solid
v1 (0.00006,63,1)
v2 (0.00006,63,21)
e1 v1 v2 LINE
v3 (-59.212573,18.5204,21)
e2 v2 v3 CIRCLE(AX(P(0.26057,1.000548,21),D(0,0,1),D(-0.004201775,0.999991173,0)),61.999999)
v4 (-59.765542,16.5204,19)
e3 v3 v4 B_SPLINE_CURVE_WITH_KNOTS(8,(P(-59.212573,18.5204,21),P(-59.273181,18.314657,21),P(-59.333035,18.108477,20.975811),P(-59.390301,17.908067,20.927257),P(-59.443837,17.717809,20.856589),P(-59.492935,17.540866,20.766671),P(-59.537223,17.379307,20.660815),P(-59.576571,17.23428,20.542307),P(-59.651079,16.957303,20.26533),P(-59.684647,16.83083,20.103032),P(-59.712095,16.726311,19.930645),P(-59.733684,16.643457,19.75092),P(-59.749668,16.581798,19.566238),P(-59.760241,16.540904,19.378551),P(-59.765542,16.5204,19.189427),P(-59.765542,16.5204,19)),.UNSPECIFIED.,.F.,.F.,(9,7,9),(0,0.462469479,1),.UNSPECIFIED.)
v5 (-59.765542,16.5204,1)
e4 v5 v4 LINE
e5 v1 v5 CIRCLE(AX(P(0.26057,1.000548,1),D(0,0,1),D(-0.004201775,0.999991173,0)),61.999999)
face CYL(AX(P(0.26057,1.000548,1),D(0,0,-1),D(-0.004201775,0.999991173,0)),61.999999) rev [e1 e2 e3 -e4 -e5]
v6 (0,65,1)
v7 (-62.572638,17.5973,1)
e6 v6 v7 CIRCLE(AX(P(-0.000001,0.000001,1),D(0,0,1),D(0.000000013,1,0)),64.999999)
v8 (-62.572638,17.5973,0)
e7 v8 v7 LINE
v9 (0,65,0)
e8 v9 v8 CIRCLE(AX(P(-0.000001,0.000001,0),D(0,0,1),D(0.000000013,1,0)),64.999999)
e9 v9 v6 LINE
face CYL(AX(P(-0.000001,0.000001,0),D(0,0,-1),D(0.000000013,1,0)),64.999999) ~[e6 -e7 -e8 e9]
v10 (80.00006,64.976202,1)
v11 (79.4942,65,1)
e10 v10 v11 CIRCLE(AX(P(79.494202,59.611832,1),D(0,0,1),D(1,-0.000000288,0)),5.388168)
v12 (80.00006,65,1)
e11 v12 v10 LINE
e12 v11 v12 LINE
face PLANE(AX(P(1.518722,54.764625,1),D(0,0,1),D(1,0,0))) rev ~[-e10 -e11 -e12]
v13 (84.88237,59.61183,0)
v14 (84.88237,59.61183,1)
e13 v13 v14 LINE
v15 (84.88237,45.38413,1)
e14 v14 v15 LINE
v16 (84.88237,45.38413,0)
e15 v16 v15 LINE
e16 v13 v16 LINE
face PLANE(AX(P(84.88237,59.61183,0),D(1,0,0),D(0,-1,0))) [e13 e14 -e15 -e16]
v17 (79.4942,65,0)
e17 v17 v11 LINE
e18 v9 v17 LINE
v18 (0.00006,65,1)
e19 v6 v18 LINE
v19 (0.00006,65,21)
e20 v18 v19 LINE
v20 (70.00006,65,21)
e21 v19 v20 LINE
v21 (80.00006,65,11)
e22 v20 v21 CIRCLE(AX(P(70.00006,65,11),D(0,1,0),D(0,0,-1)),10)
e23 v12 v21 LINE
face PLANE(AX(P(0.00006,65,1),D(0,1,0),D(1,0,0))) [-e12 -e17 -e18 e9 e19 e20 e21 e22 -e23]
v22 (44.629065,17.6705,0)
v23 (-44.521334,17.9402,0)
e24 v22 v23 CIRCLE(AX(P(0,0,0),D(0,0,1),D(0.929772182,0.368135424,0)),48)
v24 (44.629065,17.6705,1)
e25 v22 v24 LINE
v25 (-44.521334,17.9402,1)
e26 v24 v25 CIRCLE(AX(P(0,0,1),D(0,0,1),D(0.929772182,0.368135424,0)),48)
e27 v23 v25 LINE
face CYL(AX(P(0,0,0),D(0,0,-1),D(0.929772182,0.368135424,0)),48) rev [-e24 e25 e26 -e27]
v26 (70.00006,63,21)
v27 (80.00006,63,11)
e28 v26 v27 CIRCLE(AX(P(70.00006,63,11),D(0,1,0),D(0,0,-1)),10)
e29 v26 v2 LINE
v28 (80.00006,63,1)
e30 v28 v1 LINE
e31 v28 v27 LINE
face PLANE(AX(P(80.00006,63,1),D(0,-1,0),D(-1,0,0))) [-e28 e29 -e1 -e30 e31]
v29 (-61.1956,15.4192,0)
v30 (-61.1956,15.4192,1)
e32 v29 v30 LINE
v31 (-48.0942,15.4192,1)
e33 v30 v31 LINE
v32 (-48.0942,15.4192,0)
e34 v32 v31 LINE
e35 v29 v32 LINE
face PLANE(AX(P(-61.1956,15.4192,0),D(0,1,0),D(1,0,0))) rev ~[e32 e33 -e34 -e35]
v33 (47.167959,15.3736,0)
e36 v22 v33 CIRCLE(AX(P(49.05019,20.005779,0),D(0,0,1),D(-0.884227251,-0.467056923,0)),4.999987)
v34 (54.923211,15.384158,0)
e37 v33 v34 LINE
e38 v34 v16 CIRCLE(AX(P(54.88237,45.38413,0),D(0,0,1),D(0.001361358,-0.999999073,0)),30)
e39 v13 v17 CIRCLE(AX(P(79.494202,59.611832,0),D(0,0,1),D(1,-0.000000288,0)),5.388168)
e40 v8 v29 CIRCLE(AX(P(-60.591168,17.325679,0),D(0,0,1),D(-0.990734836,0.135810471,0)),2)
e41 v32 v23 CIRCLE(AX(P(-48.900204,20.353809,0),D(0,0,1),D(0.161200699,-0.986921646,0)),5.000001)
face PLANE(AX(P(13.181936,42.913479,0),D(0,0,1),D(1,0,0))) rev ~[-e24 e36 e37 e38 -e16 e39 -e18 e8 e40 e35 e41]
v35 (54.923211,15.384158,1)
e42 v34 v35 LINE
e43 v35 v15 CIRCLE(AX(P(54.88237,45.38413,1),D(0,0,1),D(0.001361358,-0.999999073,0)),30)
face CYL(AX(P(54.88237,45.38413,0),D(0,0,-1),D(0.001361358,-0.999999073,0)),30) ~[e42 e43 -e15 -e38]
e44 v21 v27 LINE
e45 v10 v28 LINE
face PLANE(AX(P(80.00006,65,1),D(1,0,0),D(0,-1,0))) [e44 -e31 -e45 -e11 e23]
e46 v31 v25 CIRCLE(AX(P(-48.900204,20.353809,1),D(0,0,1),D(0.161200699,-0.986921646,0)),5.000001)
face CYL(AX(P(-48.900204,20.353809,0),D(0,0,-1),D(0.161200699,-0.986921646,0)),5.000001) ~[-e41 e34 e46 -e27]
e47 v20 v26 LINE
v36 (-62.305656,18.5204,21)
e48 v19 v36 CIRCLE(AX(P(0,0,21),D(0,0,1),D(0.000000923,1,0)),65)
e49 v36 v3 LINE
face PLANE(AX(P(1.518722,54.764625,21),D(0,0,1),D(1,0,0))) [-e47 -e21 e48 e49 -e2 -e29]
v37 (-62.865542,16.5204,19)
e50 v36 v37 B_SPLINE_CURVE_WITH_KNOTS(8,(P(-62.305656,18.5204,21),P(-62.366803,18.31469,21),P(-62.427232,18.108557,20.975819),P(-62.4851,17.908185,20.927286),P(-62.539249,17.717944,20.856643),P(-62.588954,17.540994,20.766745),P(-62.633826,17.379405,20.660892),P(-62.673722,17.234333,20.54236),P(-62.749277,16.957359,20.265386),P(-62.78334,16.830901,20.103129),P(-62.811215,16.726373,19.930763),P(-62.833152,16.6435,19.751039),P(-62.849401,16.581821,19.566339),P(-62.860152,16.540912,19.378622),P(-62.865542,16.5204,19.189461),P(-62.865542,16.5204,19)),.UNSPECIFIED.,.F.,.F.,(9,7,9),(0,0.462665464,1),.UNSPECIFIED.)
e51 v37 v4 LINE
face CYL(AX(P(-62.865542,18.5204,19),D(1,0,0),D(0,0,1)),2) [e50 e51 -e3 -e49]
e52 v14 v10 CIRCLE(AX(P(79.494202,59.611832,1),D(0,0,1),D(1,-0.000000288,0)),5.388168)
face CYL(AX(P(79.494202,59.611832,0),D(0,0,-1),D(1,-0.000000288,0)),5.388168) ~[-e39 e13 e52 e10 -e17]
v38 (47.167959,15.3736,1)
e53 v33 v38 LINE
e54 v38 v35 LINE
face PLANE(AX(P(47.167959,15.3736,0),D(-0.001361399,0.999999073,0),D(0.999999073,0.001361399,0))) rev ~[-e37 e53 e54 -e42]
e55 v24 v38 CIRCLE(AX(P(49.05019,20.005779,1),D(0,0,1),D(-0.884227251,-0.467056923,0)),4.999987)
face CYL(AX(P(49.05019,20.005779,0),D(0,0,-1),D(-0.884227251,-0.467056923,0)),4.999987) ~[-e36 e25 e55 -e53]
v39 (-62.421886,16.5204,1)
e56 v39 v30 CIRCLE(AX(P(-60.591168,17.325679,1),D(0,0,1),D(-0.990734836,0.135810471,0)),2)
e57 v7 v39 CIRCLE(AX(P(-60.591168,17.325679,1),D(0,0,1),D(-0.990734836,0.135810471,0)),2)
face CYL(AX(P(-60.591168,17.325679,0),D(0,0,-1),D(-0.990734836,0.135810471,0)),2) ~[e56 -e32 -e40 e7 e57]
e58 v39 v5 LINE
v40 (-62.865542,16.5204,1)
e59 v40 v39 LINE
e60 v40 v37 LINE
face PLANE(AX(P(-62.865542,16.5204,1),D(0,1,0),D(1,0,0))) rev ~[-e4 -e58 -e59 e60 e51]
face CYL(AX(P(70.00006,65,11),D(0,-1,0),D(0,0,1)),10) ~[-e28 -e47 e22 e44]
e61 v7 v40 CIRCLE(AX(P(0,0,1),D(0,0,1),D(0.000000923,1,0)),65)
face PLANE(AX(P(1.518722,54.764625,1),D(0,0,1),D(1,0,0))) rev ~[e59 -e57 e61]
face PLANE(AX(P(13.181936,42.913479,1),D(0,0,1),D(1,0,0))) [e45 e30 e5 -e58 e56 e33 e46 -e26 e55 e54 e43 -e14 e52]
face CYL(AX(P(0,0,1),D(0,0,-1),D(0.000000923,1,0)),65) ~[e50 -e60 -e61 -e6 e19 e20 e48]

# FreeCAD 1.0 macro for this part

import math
import FreeCAD as App
import Part
import Sketcher
Q = App.Units.Quantity


def edges_at(feature, points):
    """Names of the edges that pass closest to the given points."""
    edges = feature.Shape.Edges
    near = lambda p: min(range(len(edges)), key=lambda i: edges[i].distToShape(Part.Vertex(*p))[0])
    return sorted({f"Edge{near(p) + 1}" for p in points})

doc = App.newDocument("Part")
body = doc.addObject("PartDesign::Body", "Body")

# Sketch on XY plane
sketch1 = doc.addObject("Sketcher::SketchObject", "Sketch")
body.addObject(sketch1)
sketch1.AttachmentSupport = (doc.XY_Plane, [""])
sketch1.MapMode = "FlatFace"
sketch1.addGeometry([
    Part.ArcOfCircle(Part.Circle(App.Vector(0, 0, 0), App.Vector(0, 0, 1), 65), math.radians(90), math.radians(164)),  # 0
    Part.ArcOfCircle(Part.Circle(App.Vector(-60.6, 17.3, 0), App.Vector(0, 0, 1), 2), math.radians(172), math.radians(252)),  # 1
    Part.LineSegment(App.Vector(-61.2, 15.4, 0), App.Vector(-48.1, 15.4, 0)),  # 2
    Part.ArcOfCircle(Part.Circle(App.Vector(-48.9, 20.4, 0), App.Vector(0, 0, 1), 5), math.radians(-81), math.radians(-29)),  # 3
    Part.ArcOfCircle(Part.Circle(App.Vector(0, 0, 0), App.Vector(0, 0, 1), 48), math.radians(22), math.radians(158)),  # 4
    Part.ArcOfCircle(Part.Circle(App.Vector(49.1, 20, 0), App.Vector(0, 0, 1), 5), math.radians(-152), math.radians(-112)),  # 5
    Part.LineSegment(App.Vector(47.2, 15.4, 0), App.Vector(54.9, 15.4, 0)),  # 6
    Part.ArcOfCircle(Part.Circle(App.Vector(54.9, 45.4, 0), App.Vector(0, 0, 1), 30), math.radians(-90), math.radians(0)),  # 7
    Part.LineSegment(App.Vector(84.9, 45.4, 0), App.Vector(84.9, 59.6, 0)),  # 8
    Part.ArcOfCircle(Part.Circle(App.Vector(79.5, 59.6, 0), App.Vector(0, 0, 1), 5.4), math.radians(0), math.radians(90)),  # 9
    Part.LineSegment(App.Vector(79.5, 65, 0), App.Vector(0, 65, 0)),  # 10
], False)
sketch1.addConstraint([
    Sketcher.Constraint("Coincident", 0, 2, 1, 1),
    Sketcher.Constraint("Coincident", 1, 2, 2, 1),
    Sketcher.Constraint("Coincident", 2, 2, 3, 1),
    Sketcher.Constraint("Coincident", 3, 2, 4, 2),
    Sketcher.Constraint("Coincident", 4, 1, 5, 1),
    Sketcher.Constraint("Coincident", 5, 2, 6, 1),
    Sketcher.Constraint("Tangent", 6, 2, 7, 1),
    Sketcher.Constraint("Tangent", 7, 2, 8, 1),
    Sketcher.Constraint("Tangent", 8, 2, 9, 1),
    Sketcher.Constraint("Tangent", 9, 2, 10, 1),
    Sketcher.Constraint("Tangent", 10, 2, 0, 1),
    Sketcher.Constraint("Horizontal", 2),
    Sketcher.Constraint("Vertical", 8),
    Sketcher.Constraint("Horizontal", 10),
    Sketcher.Constraint("Coincident", 0, 3, -1, 1),
    Sketcher.Constraint("Coincident", 4, 3, -1, 1),
    Sketcher.Constraint("Radius", 0, Q("64.999999 mm")),
    Sketcher.Constraint("Radius", 1, Q("2 mm")),
    Sketcher.Constraint("Radius", 3, Q("5.000001 mm")),
    Sketcher.Constraint("Radius", 4, Q("48 mm")),
    Sketcher.Constraint("Radius", 7, Q("30 mm")),
    Sketcher.Constraint("Radius", 9, Q("5.388168 mm")),
    Sketcher.Constraint("DistanceX", 2, 1, 2, 2, Q("13.1014 mm")),
    Sketcher.Constraint("DistanceX", 10, 2, 10, 1, Q("79.4942 mm")),
    Sketcher.Constraint("DistanceY", 8, 1, 8, 2, Q("14.2277 mm")),
    Sketcher.Constraint("Radius", 5, Q("4.999987 mm")),
    Sketcher.Constraint("DistanceY", 2, 2, 3, 2, Q("2.521 mm")),
    Sketcher.Constraint("DistanceY", -1, 1, 0, 2, Q("17.5973 mm")),
    Sketcher.Constraint("DistanceX", 1, 2, -1, 1, Q("61.1956 mm")),
    Sketcher.Constraint("DistanceY", -1, 1, 1, 2, Q("15.4192 mm")),
    Sketcher.Constraint("DistanceY", -1, 1, 4, 1, Q("17.6705 mm")),
    Sketcher.Constraint("DistanceY", -1, 1, 5, 2, Q("15.3736 mm")),
    Sketcher.Constraint("DistanceY", 1, 3, 5, 3, Q("2.6801 mm")),
])
pad1 = doc.addObject("PartDesign::Pad", "Pad")
body.addObject(pad1)
pad1.Profile = sketch1
pad1.Length = 1

# Sketch on XY plane
sketch2 = doc.addObject("Sketcher::SketchObject", "Sketch001")
body.addObject(sketch2)
sketch2.AttachmentSupport = (doc.XY_Plane, [""])
sketch2.MapMode = "FlatFace"
sketch2.AttachmentOffset = App.Placement(App.Vector(0, 0, 1), App.Rotation())
sketch2.addGeometry([
    Part.ArcOfCircle(Part.Circle(App.Vector(0, 0, 0), App.Vector(0, 0, 1), 65), math.radians(89.999947), math.radians(165.276183)),  # 0
    Part.LineSegment(App.Vector(-62.865542, 16.5204, 0), App.Vector(-59.765542, 16.5204, 0)),  # 1
    Part.ArcOfCircle(Part.Circle(App.Vector(0.26057, 1.000548, 0), App.Vector(0, 0, 1), 62), math.radians(90.240745), math.radians(165.503539)),  # 2
    Part.LineSegment(App.Vector(0.00006, 63, 0), App.Vector(80.00006, 63, 0)),  # 3
    Part.LineSegment(App.Vector(80.00006, 63, 0), App.Vector(80.00006, 65, 0)),  # 4
    Part.LineSegment(App.Vector(80.00006, 65, 0), App.Vector(0.00006, 65, 0)),  # 5
], False)
sketch2.addConstraint([
    Sketcher.Constraint("Coincident", 0, 2, 1, 1),
    Sketcher.Constraint("Coincident", 1, 2, 2, 2),
    Sketcher.Constraint("Coincident", 2, 1, 3, 1),
    Sketcher.Constraint("Coincident", 3, 2, 4, 1),
    Sketcher.Constraint("Coincident", 4, 2, 5, 1),
    Sketcher.Constraint("Coincident", 5, 2, 0, 1),
    Sketcher.Constraint("Horizontal", 1),
    Sketcher.Constraint("Horizontal", 3),
    Sketcher.Constraint("Vertical", 4),
    Sketcher.Constraint("Horizontal", 5),
    Sketcher.Constraint("Coincident", 0, 3, -1, 1),
    Sketcher.Constraint("Radius", 0, Q("65 mm")),
    Sketcher.Constraint("Radius", 2, Q("62 mm")),
    Sketcher.Constraint("DistanceX", 3, 1, 3, 2, Q("80 mm")),
    Sketcher.Constraint("DistanceX", 5, 2, 5, 1, Q("80 mm")),
    Sketcher.Constraint("DistanceY", 4, 1, 4, 2, Q("2 mm")),
    Sketcher.Constraint("DistanceX", 1, 1, 1, 2, Q("3.1 mm")),
    Sketcher.Constraint("DistanceY", -1, 1, 0, 2, Q("16.5204 mm")),
    Sketcher.Constraint("DistanceX", 1, 2, 2, 1, Q("59.765602 mm")),
])
pad2 = doc.addObject("PartDesign::Pad", "Pad001")
body.addObject(pad2)
pad2.Profile = sketch2
pad2.Length = 20
doc.recompute()

fillet = doc.addObject("PartDesign::Fillet", "Fillet")
body.addObject(fillet)
fillet.Base = (pad2, edges_at(pad2, [(80, 64, 21)]))
fillet.Radius = 10
doc.recompute()

fillet2 = doc.addObject("PartDesign::Fillet", "Fillet001")
body.addObject(fillet2)
fillet2.Base = (fillet, edges_at(fillet, [(-61.316, 16.52, 21)]))
fillet2.Radius = 2

doc.recompute()
